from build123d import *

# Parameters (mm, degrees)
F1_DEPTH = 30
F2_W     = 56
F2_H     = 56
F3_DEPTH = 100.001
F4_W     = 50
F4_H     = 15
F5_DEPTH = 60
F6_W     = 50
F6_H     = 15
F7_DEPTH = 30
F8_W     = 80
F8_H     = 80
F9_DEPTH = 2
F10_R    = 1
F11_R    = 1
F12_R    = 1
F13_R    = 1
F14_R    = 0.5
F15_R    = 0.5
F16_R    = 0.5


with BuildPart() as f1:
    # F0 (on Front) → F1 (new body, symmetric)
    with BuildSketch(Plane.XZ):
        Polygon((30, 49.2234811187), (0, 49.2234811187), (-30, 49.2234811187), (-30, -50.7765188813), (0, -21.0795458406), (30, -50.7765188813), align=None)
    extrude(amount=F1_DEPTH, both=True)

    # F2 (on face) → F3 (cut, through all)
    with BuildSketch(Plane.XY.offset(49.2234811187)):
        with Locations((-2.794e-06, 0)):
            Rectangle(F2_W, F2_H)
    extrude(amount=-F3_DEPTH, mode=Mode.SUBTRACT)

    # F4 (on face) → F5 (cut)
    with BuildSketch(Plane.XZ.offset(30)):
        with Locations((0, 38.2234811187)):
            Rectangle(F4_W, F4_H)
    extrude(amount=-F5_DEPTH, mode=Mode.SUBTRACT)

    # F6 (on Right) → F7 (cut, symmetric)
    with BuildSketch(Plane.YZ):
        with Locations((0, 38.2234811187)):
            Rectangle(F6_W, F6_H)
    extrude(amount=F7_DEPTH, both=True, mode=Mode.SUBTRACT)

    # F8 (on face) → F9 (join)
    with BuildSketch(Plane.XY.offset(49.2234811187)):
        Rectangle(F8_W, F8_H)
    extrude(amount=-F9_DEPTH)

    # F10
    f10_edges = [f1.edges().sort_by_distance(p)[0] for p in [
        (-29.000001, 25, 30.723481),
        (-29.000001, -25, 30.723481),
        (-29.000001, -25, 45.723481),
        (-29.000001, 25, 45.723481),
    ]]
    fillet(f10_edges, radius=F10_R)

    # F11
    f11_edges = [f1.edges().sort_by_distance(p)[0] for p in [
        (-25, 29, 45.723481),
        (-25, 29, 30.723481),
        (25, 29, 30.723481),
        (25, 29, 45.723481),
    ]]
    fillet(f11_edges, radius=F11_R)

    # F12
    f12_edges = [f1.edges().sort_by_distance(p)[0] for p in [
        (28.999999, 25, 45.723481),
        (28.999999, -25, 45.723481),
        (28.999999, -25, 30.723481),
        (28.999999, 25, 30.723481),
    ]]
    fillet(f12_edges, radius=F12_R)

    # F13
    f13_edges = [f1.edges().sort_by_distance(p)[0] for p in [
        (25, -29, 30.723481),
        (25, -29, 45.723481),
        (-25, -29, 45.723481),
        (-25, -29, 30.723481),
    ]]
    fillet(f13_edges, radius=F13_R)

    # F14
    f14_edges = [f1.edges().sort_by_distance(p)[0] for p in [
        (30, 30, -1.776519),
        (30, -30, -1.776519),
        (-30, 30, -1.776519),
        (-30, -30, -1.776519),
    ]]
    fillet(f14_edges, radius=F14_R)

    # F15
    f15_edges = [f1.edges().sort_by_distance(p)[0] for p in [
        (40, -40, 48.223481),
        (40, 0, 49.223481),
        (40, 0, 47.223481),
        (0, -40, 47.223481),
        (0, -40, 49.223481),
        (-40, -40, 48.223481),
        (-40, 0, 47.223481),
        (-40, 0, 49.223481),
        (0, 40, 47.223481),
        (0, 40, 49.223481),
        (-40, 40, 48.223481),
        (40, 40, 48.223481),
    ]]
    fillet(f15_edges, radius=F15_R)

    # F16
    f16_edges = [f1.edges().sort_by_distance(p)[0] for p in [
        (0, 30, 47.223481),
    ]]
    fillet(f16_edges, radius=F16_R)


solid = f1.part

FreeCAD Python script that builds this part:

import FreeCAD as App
import Part
import Sketcher
Q = App.Units.Quantity


def edges_at(feature, points):
    """Names of the edges that pass closest to the given points."""
    edges = feature.Shape.Edges
    near = lambda p: min(range(len(edges)), key=lambda i: edges[i].distToShape(Part.Vertex(*p))[0])
    return sorted({f"Edge{near(p) + 1}" for p in points})


def add_polygon(sketch, points):
    """Adds a closed chain of lines whose ends are joined by coincident constraints."""
    first, n = sketch.GeometryCount, len(points)
    for a, b in zip(points, points[1:] + points[:1]):
        sketch.addGeometry(Part.LineSegment(App.Vector(*a, 0), App.Vector(*b, 0)), False)
    for i in range(n):
        sketch.addConstraint(Sketcher.Constraint("Coincident", first + i, 2, first + (i + 1) % n, 1))

doc = App.newDocument("Part")
body = doc.addObject("PartDesign::Body", "Body")

sketch1 = doc.addObject("Sketcher::SketchObject", "Sketch")
body.addObject(sketch1)
sketch1.AttachmentSupport = (doc.XZ_Plane, [""])
sketch1.MapMode = "FlatFace"
add_polygon(sketch1, [(30, 49.223481), (-30, 49.223481), (-30, -50.776519), (0, -21.079546), (30, -50.776519)])
sketch1.addConstraint([
    Sketcher.Constraint("Horizontal", 0),
    Sketcher.Constraint("Vertical", 1),
    Sketcher.Constraint("Vertical", 4),
    Sketcher.Constraint("Symmetric", 1, 2, 3, 2, -2),
    Sketcher.Constraint("PointOnObject", 2, 2, -2),
    Sketcher.Constraint("DistanceX", 0, 2, 0, 1, Q("60 mm")),
    Sketcher.Constraint("DistanceY", 1, 2, 1, 1, Q("100 mm")),
    Sketcher.Constraint("Distance", 2, Q("42.212678 mm")),
    Sketcher.Constraint("DistanceY", -1, 1, 0, 2, Q("49.223481 mm")),
])
pad1 = doc.addObject("PartDesign::Pad", "Pad")
body.addObject(pad1)
pad1.Profile = sketch1
pad1.Length = 60
pad1.Midplane = True

sketch2 = doc.addObject("Sketcher::SketchObject", "Sketch001")
body.addObject(sketch2)
sketch2.AttachmentSupport = (doc.XY_Plane, [""])
sketch2.MapMode = "FlatFace"
sketch2.AttachmentOffset = App.Placement(App.Vector(0, 0, 49.223481), App.Rotation())
add_polygon(sketch2, [(-28, 28), (-28, -28), (28, -28), (28, 28)])
sketch2.addConstraint([
    Sketcher.Constraint("Vertical", 0),
    Sketcher.Constraint("Horizontal", 1),
    Sketcher.Constraint("Vertical", 2),
    Sketcher.Constraint("Horizontal", 3),
    Sketcher.Constraint("Symmetric", 0, 2, 2, 2, -1, 1),
    Sketcher.Constraint("Equal", 3, 0),
    Sketcher.Constraint("DistanceX", 1, 1, 1, 2, Q("56 mm")),
])
pocket1 = doc.addObject("PartDesign::Pocket", "Pocket")
body.addObject(pocket1)
pocket1.Profile = sketch2
pocket1.Type = "ThroughAll"

sketch3 = doc.addObject("Sketcher::SketchObject", "Sketch002")
body.addObject(sketch3)
sketch3.AttachmentSupport = (doc.XZ_Plane, [""])
sketch3.MapMode = "FlatFace"
sketch3.AttachmentOffset = App.Placement(App.Vector(0, 0, 30), App.Rotation())
add_polygon(sketch3, [(-25, 45.723481), (-25, 30.723481), (25, 30.723481), (25, 45.723481)])
sketch3.addConstraint([
    Sketcher.Constraint("Vertical", 0),
    Sketcher.Constraint("Horizontal", 1),
    Sketcher.Constraint("Vertical", 2),
    Sketcher.Constraint("Horizontal", 3),
    Sketcher.Constraint("DistanceX", 1, 1, 1, 2, Q("50 mm")),
    Sketcher.Constraint("DistanceY", 0, 2, 0, 1, Q("15 mm")),
    Sketcher.Constraint("DistanceX", 0, 2, -1, 1, Q("25 mm")),
    Sketcher.Constraint("DistanceY", -1, 1, 0, 2, Q("30.723481 mm")),
])
pocket2 = doc.addObject("PartDesign::Pocket", "Pocket001")
body.addObject(pocket2)
pocket2.Profile = sketch3
pocket2.Length = 60

sketch4 = doc.addObject("Sketcher::SketchObject", "Sketch003")
body.addObject(sketch4)
sketch4.AttachmentSupport = (doc.YZ_Plane, [""])
sketch4.MapMode = "FlatFace"
add_polygon(sketch4, [(-25, 45.723481), (-25, 30.723481), (25, 30.723481), (25, 45.723481)])
sketch4.addConstraint([
    Sketcher.Constraint("Vertical", 0),
    Sketcher.Constraint("Horizontal", 1),
    Sketcher.Constraint("Vertical", 2),
    Sketcher.Constraint("Horizontal", 3),
    Sketcher.Constraint("DistanceX", 1, 1, 1, 2, Q("50 mm")),
    Sketcher.Constraint("DistanceY", 0, 2, 0, 1, Q("15 mm")),
    Sketcher.Constraint("DistanceX", 0, 2, -1, 1, Q("25 mm")),
    Sketcher.Constraint("DistanceY", -1, 1, 0, 2, Q("30.723481 mm")),
])
pocket3 = doc.addObject("PartDesign::Pocket", "Pocket002")
body.addObject(pocket3)
pocket3.Profile = sketch4
pocket3.Length = 60
pocket3.Midplane = True

sketch5 = doc.addObject("Sketcher::SketchObject", "Sketch004")
body.addObject(sketch5)
sketch5.AttachmentSupport = (doc.XY_Plane, [""])
sketch5.MapMode = "FlatFace"
sketch5.AttachmentOffset = App.Placement(App.Vector(0, 0, 49.223481), App.Rotation())
add_polygon(sketch5, [(-40, 40), (-40, -40), (40, -40), (40, 40)])
sketch5.addConstraint([
    Sketcher.Constraint("Vertical", 0),
    Sketcher.Constraint("Horizontal", 1),
    Sketcher.Constraint("Vertical", 2),
    Sketcher.Constraint("Horizontal", 3),
    Sketcher.Constraint("Symmetric", 0, 2, 2, 2, -1, 1),
    Sketcher.Constraint("Equal", 3, 0),
    Sketcher.Constraint("DistanceX", 1, 1, 1, 2, Q("80 mm")),
])
pad2 = doc.addObject("PartDesign::Pad", "Pad001")
body.addObject(pad2)
pad2.Profile = sketch5
pad2.Length = 2
pad2.Reversed = True
doc.recompute()

fillet = doc.addObject("PartDesign::Fillet", "Fillet")
body.addObject(fillet)
fillet.Base = (pad2, edges_at(pad2, [
    (-29, 25, 30.723),
    (-29, -25, 30.723),
    (-29, -25, 45.723),
    (-29, 25, 45.723),
]))
fillet.Radius = 1
doc.recompute()

fillet2 = doc.addObject("PartDesign::Fillet", "Fillet001")
body.addObject(fillet2)
fillet2.Base = (fillet, edges_at(fillet, [
    (-25, 29, 45.723),
    (-25, 29, 30.723),
    (25, 29, 30.723),
    (25, 29, 45.723),
]))
fillet2.Radius = 1
doc.recompute()

fillet3 = doc.addObject("PartDesign::Fillet", "Fillet002")
body.addObject(fillet3)
fillet3.Base = (fillet2, edges_at(fillet2, [
    (29, 25, 45.723),
    (29, -25, 45.723),
    (29, -25, 30.723),
    (29, 25, 30.723),
]))
fillet3.Radius = 1
doc.recompute()

fillet4 = doc.addObject("PartDesign::Fillet", "Fillet003")
body.addObject(fillet4)
fillet4.Base = (fillet3, edges_at(fillet3, [
    (25, -29, 30.723),
    (25, -29, 45.723),
    (-25, -29, 45.723),
    (-25, -29, 30.723),
]))
fillet4.Radius = 1
doc.recompute()

fillet5 = doc.addObject("PartDesign::Fillet", "Fillet004")
body.addObject(fillet5)
fillet5.Base = (fillet4, edges_at(fillet4, [
    (30, 30, -1.777),
    (30, -30, -1.777),
    (-30, 30, -1.777),
    (-30, -30, -1.777),
]))
fillet5.Radius = 0.5
doc.recompute()

fillet6 = doc.addObject("PartDesign::Fillet", "Fillet005")
body.addObject(fillet6)
fillet6.Base = (fillet5, edges_at(fillet5, [
    (40, -40, 48.223),
    (40, 0, 49.223),
    (40, 0, 47.223),
    (0, -40, 47.223),
    (0, -40, 49.223),
    (-40, -40, 48.223),
    (-40, 0, 47.223),
    (-40, 0, 49.223),
    (0, 40, 47.223),
    (0, 40, 49.223),
    (-40, 40, 48.223),
    (40, 40, 48.223),
]))
fillet6.Radius = 0.5
doc.recompute()

fillet7 = doc.addObject("PartDesign::Fillet", "Fillet006")
body.addObject(fillet7)
fillet7.Base = (fillet6, edges_at(fillet6, [(0, 30, 47.223)]))
fillet7.Radius = 0.5

doc.recompute()
